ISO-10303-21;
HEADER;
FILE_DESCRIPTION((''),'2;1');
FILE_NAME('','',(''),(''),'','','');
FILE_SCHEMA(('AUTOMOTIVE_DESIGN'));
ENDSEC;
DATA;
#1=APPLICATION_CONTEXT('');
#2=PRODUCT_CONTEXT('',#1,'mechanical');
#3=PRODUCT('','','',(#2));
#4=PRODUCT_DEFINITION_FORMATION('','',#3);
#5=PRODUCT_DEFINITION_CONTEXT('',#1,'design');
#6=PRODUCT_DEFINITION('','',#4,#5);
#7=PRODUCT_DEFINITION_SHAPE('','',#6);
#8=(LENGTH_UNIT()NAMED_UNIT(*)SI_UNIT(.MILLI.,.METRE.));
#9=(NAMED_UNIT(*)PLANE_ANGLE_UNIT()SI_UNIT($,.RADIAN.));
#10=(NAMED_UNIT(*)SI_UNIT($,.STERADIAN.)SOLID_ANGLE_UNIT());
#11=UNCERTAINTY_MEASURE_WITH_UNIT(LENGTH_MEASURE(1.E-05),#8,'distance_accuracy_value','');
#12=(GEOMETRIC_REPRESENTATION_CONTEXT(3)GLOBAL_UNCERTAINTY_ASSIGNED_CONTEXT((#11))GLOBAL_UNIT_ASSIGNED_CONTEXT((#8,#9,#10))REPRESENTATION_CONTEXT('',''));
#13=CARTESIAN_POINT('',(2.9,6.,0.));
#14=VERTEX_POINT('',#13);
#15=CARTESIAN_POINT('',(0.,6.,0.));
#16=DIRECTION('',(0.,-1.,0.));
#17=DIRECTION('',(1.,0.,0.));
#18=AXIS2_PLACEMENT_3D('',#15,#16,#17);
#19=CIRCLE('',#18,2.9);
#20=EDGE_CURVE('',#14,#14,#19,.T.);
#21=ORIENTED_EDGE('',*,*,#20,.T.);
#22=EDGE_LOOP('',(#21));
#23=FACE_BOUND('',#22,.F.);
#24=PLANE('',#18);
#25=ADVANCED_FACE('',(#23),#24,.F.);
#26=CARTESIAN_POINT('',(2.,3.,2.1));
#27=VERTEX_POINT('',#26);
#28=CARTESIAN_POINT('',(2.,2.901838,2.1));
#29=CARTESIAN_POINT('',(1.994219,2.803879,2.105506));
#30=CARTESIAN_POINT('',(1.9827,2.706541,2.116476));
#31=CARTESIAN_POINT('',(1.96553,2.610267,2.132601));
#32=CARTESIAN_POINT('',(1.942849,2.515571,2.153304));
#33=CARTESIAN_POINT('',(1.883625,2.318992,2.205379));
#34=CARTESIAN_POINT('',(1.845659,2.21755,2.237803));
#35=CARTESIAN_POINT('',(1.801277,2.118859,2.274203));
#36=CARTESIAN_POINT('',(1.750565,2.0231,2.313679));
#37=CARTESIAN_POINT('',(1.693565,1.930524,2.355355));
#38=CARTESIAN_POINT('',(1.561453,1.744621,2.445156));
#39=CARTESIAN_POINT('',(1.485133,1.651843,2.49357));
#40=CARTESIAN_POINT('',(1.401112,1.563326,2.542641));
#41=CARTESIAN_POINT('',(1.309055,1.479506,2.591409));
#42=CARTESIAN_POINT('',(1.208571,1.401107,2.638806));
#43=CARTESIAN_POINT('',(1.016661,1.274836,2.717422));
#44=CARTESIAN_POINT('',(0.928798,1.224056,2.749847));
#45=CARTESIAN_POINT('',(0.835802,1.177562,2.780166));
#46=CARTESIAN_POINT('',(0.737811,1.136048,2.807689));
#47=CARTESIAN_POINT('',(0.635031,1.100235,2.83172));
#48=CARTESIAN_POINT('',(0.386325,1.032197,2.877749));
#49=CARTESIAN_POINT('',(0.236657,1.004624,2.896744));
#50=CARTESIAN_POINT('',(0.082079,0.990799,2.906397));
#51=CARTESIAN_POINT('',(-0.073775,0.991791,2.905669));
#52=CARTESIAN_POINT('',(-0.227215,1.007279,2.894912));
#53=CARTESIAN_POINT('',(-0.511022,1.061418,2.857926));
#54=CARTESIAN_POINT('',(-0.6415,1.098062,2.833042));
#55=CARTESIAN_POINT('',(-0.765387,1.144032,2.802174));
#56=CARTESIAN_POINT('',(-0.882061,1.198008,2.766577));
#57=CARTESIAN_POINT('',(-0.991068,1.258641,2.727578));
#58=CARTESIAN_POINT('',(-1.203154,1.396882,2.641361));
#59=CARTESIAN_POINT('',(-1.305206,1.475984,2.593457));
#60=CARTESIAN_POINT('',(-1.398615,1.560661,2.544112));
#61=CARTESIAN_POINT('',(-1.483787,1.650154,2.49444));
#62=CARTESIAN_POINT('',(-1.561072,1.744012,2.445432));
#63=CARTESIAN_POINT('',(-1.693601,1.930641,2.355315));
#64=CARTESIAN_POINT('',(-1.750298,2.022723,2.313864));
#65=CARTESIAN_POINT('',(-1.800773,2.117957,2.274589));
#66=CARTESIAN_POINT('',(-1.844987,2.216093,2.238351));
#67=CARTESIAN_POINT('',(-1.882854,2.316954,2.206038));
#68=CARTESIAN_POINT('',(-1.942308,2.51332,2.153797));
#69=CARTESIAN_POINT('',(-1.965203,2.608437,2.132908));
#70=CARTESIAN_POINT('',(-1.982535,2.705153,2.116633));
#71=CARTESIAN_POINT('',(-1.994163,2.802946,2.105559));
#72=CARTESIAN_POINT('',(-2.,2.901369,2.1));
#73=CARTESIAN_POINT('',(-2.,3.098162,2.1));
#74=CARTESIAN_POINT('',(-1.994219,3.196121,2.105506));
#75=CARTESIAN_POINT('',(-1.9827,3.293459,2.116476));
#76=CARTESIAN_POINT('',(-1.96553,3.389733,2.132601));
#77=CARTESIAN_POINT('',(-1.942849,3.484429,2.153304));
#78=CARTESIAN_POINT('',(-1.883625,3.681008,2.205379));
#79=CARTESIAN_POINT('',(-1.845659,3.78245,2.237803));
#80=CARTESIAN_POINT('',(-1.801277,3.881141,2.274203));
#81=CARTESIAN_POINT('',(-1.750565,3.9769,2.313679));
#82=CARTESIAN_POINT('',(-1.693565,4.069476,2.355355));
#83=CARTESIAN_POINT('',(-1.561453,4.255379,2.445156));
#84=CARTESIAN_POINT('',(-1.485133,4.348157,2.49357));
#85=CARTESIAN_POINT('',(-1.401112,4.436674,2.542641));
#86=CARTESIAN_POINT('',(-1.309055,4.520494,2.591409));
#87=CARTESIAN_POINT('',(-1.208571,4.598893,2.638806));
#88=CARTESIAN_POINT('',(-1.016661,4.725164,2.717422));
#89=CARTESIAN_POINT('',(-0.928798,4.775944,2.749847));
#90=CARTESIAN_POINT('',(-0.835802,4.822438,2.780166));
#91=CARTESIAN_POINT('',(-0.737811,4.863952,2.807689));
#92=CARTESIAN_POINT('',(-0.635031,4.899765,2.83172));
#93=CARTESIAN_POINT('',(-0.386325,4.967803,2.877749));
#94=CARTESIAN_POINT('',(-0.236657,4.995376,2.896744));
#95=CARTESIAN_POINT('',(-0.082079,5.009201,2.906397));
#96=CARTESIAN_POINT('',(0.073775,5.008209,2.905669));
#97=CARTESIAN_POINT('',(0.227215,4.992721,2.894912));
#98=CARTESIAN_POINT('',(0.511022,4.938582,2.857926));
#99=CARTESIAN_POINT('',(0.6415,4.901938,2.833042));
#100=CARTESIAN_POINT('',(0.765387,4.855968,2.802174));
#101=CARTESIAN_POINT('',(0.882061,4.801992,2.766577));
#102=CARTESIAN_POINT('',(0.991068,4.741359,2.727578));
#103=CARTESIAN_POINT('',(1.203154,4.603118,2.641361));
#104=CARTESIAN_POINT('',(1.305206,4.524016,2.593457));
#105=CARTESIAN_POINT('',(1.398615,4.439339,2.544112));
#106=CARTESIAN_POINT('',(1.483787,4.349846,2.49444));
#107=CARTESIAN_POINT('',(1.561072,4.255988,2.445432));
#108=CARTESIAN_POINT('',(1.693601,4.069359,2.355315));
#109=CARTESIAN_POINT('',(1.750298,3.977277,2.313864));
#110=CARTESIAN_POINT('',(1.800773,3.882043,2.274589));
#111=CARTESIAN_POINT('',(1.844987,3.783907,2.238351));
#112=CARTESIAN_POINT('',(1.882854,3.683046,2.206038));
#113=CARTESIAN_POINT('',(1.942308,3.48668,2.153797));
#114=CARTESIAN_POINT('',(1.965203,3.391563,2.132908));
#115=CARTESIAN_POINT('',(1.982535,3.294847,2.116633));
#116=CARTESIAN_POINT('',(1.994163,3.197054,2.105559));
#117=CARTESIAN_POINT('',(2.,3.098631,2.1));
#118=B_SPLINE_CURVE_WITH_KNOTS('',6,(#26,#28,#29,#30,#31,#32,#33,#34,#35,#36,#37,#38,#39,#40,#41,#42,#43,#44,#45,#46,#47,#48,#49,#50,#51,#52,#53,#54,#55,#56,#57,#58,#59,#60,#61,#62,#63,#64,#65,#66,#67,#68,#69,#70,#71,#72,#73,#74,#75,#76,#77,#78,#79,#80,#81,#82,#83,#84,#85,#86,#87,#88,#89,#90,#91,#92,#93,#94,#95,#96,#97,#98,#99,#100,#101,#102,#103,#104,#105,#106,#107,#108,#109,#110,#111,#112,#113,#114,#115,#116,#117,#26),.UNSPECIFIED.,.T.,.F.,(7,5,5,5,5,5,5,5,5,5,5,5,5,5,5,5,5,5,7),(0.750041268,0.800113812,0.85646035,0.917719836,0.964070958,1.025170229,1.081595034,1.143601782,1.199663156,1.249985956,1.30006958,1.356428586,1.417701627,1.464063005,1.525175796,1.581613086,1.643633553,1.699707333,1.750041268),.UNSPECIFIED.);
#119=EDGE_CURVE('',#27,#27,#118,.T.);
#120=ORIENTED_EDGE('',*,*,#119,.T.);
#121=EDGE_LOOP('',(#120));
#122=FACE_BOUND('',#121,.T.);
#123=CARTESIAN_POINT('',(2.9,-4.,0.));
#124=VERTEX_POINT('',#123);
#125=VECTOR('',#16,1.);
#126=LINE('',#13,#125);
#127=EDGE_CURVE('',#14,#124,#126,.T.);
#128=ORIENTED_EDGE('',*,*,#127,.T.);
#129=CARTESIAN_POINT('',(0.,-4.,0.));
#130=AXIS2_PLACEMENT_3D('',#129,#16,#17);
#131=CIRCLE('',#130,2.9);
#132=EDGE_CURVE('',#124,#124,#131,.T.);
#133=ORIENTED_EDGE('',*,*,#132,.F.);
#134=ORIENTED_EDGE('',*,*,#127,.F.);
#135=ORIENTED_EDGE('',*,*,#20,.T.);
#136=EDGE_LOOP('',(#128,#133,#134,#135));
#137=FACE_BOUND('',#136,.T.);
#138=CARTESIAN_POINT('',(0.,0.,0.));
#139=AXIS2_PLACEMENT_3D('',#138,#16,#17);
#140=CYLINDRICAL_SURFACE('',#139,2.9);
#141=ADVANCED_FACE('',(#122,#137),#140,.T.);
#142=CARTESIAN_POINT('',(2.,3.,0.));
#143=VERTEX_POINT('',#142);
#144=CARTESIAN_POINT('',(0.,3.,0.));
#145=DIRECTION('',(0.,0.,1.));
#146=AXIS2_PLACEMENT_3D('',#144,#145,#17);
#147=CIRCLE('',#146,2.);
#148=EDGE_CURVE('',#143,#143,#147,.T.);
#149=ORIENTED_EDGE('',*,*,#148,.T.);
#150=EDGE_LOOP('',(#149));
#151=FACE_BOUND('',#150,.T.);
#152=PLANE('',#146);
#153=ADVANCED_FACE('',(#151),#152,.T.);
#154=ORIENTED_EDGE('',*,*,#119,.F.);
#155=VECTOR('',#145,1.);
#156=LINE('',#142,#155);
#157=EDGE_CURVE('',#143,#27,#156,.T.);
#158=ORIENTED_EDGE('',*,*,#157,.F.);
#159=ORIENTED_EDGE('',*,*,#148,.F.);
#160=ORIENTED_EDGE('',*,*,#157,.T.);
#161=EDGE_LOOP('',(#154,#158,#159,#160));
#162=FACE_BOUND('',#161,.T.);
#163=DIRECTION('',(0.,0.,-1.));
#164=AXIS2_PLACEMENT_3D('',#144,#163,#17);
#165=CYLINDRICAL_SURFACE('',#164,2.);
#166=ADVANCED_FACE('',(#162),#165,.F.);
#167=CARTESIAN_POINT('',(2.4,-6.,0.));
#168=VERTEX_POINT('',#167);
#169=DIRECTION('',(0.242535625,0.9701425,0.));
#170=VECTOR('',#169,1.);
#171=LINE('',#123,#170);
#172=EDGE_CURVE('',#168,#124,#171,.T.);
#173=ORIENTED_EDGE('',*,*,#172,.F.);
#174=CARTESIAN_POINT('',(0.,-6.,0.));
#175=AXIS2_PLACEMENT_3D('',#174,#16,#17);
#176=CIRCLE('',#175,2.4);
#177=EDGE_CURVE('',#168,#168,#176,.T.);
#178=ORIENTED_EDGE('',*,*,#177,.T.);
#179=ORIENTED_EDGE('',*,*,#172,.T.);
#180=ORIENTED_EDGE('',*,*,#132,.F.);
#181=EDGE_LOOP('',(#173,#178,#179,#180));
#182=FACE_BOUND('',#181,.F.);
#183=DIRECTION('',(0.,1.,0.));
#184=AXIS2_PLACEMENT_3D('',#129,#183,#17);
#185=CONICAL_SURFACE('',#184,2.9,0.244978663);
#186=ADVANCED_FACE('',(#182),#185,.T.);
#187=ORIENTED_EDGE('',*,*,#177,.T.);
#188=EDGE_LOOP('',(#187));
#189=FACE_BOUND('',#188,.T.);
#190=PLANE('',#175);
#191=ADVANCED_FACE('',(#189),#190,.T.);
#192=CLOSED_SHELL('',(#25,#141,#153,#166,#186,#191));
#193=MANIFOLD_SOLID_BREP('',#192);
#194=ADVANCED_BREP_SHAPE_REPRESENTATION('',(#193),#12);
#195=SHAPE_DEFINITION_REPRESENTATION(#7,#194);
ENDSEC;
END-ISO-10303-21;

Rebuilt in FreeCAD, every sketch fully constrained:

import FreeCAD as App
import Part
import Sketcher


def edges_at(feature, points):
    """Names of the edges that pass closest to the given points."""
    edges = feature.Shape.Edges
    near = lambda p: min(range(len(edges)), key=lambda i: edges[i].distToShape(Part.Vertex(*p))[0])
    return sorted({f"Edge{near(p) + 1}" for p in points})

doc = App.newDocument("Part")
body = doc.addObject("PartDesign::Body", "Body")

# Sketch on XZ plane
sketch1 = body.newObject("Sketcher::SketchObject", "Sketch")
sketch1.AttachmentSupport = (doc.getObject("XZ_Plane"), [""])
sketch1.MapMode = "FlatFace"
sketch1.addGeometry(Part.Circle(App.Vector(0, 0, 0), App.Vector(0, 0, 1), 2.9), False)
sketch1.addConstraint(Sketcher.Constraint("Coincident", 0, 3, -1, 1))
sketch1.addConstraint(Sketcher.Constraint("Diameter", 0, 5.8))
pad1 = body.newObject("PartDesign::Pad", "Pad")
pad1.Profile = sketch1
pad1.Length = 12
pad1.Midplane = True

# Sketch on XY plane
sketch2 = body.newObject("Sketcher::SketchObject", "Sketch001")
sketch2.AttachmentSupport = (doc.getObject("XY_Plane"), [""])
sketch2.MapMode = "FlatFace"
sketch2.addGeometry(Part.Circle(App.Vector(0, 3, 0), App.Vector(0, 0, 1), 2), False)
sketch2.addConstraint(Sketcher.Constraint("PointOnObject", 0, 3, -2))
sketch2.addConstraint(Sketcher.Constraint("Diameter", 0, 4.0))
sketch2.addConstraint(Sketcher.Constraint("DistanceY", -1, 1, 0, 3, 3.0))
pocket1 = body.newObject("PartDesign::Pocket", "Pocket")
pocket1.Profile = sketch2
pocket1.Type = "ThroughAll"
pocket1.Reversed = True
doc.recompute()

chamfer = body.newObject("PartDesign::Chamfer", "Chamfer")
chamfer.Base = (pocket1, edges_at(pocket1, [(-2.9, -6, 0)]))
chamfer.ChamferType = "Two distances"
chamfer.Size = 0.5
chamfer.Size2 = 2
chamfer.FlipDirection = True

doc.recompute()
